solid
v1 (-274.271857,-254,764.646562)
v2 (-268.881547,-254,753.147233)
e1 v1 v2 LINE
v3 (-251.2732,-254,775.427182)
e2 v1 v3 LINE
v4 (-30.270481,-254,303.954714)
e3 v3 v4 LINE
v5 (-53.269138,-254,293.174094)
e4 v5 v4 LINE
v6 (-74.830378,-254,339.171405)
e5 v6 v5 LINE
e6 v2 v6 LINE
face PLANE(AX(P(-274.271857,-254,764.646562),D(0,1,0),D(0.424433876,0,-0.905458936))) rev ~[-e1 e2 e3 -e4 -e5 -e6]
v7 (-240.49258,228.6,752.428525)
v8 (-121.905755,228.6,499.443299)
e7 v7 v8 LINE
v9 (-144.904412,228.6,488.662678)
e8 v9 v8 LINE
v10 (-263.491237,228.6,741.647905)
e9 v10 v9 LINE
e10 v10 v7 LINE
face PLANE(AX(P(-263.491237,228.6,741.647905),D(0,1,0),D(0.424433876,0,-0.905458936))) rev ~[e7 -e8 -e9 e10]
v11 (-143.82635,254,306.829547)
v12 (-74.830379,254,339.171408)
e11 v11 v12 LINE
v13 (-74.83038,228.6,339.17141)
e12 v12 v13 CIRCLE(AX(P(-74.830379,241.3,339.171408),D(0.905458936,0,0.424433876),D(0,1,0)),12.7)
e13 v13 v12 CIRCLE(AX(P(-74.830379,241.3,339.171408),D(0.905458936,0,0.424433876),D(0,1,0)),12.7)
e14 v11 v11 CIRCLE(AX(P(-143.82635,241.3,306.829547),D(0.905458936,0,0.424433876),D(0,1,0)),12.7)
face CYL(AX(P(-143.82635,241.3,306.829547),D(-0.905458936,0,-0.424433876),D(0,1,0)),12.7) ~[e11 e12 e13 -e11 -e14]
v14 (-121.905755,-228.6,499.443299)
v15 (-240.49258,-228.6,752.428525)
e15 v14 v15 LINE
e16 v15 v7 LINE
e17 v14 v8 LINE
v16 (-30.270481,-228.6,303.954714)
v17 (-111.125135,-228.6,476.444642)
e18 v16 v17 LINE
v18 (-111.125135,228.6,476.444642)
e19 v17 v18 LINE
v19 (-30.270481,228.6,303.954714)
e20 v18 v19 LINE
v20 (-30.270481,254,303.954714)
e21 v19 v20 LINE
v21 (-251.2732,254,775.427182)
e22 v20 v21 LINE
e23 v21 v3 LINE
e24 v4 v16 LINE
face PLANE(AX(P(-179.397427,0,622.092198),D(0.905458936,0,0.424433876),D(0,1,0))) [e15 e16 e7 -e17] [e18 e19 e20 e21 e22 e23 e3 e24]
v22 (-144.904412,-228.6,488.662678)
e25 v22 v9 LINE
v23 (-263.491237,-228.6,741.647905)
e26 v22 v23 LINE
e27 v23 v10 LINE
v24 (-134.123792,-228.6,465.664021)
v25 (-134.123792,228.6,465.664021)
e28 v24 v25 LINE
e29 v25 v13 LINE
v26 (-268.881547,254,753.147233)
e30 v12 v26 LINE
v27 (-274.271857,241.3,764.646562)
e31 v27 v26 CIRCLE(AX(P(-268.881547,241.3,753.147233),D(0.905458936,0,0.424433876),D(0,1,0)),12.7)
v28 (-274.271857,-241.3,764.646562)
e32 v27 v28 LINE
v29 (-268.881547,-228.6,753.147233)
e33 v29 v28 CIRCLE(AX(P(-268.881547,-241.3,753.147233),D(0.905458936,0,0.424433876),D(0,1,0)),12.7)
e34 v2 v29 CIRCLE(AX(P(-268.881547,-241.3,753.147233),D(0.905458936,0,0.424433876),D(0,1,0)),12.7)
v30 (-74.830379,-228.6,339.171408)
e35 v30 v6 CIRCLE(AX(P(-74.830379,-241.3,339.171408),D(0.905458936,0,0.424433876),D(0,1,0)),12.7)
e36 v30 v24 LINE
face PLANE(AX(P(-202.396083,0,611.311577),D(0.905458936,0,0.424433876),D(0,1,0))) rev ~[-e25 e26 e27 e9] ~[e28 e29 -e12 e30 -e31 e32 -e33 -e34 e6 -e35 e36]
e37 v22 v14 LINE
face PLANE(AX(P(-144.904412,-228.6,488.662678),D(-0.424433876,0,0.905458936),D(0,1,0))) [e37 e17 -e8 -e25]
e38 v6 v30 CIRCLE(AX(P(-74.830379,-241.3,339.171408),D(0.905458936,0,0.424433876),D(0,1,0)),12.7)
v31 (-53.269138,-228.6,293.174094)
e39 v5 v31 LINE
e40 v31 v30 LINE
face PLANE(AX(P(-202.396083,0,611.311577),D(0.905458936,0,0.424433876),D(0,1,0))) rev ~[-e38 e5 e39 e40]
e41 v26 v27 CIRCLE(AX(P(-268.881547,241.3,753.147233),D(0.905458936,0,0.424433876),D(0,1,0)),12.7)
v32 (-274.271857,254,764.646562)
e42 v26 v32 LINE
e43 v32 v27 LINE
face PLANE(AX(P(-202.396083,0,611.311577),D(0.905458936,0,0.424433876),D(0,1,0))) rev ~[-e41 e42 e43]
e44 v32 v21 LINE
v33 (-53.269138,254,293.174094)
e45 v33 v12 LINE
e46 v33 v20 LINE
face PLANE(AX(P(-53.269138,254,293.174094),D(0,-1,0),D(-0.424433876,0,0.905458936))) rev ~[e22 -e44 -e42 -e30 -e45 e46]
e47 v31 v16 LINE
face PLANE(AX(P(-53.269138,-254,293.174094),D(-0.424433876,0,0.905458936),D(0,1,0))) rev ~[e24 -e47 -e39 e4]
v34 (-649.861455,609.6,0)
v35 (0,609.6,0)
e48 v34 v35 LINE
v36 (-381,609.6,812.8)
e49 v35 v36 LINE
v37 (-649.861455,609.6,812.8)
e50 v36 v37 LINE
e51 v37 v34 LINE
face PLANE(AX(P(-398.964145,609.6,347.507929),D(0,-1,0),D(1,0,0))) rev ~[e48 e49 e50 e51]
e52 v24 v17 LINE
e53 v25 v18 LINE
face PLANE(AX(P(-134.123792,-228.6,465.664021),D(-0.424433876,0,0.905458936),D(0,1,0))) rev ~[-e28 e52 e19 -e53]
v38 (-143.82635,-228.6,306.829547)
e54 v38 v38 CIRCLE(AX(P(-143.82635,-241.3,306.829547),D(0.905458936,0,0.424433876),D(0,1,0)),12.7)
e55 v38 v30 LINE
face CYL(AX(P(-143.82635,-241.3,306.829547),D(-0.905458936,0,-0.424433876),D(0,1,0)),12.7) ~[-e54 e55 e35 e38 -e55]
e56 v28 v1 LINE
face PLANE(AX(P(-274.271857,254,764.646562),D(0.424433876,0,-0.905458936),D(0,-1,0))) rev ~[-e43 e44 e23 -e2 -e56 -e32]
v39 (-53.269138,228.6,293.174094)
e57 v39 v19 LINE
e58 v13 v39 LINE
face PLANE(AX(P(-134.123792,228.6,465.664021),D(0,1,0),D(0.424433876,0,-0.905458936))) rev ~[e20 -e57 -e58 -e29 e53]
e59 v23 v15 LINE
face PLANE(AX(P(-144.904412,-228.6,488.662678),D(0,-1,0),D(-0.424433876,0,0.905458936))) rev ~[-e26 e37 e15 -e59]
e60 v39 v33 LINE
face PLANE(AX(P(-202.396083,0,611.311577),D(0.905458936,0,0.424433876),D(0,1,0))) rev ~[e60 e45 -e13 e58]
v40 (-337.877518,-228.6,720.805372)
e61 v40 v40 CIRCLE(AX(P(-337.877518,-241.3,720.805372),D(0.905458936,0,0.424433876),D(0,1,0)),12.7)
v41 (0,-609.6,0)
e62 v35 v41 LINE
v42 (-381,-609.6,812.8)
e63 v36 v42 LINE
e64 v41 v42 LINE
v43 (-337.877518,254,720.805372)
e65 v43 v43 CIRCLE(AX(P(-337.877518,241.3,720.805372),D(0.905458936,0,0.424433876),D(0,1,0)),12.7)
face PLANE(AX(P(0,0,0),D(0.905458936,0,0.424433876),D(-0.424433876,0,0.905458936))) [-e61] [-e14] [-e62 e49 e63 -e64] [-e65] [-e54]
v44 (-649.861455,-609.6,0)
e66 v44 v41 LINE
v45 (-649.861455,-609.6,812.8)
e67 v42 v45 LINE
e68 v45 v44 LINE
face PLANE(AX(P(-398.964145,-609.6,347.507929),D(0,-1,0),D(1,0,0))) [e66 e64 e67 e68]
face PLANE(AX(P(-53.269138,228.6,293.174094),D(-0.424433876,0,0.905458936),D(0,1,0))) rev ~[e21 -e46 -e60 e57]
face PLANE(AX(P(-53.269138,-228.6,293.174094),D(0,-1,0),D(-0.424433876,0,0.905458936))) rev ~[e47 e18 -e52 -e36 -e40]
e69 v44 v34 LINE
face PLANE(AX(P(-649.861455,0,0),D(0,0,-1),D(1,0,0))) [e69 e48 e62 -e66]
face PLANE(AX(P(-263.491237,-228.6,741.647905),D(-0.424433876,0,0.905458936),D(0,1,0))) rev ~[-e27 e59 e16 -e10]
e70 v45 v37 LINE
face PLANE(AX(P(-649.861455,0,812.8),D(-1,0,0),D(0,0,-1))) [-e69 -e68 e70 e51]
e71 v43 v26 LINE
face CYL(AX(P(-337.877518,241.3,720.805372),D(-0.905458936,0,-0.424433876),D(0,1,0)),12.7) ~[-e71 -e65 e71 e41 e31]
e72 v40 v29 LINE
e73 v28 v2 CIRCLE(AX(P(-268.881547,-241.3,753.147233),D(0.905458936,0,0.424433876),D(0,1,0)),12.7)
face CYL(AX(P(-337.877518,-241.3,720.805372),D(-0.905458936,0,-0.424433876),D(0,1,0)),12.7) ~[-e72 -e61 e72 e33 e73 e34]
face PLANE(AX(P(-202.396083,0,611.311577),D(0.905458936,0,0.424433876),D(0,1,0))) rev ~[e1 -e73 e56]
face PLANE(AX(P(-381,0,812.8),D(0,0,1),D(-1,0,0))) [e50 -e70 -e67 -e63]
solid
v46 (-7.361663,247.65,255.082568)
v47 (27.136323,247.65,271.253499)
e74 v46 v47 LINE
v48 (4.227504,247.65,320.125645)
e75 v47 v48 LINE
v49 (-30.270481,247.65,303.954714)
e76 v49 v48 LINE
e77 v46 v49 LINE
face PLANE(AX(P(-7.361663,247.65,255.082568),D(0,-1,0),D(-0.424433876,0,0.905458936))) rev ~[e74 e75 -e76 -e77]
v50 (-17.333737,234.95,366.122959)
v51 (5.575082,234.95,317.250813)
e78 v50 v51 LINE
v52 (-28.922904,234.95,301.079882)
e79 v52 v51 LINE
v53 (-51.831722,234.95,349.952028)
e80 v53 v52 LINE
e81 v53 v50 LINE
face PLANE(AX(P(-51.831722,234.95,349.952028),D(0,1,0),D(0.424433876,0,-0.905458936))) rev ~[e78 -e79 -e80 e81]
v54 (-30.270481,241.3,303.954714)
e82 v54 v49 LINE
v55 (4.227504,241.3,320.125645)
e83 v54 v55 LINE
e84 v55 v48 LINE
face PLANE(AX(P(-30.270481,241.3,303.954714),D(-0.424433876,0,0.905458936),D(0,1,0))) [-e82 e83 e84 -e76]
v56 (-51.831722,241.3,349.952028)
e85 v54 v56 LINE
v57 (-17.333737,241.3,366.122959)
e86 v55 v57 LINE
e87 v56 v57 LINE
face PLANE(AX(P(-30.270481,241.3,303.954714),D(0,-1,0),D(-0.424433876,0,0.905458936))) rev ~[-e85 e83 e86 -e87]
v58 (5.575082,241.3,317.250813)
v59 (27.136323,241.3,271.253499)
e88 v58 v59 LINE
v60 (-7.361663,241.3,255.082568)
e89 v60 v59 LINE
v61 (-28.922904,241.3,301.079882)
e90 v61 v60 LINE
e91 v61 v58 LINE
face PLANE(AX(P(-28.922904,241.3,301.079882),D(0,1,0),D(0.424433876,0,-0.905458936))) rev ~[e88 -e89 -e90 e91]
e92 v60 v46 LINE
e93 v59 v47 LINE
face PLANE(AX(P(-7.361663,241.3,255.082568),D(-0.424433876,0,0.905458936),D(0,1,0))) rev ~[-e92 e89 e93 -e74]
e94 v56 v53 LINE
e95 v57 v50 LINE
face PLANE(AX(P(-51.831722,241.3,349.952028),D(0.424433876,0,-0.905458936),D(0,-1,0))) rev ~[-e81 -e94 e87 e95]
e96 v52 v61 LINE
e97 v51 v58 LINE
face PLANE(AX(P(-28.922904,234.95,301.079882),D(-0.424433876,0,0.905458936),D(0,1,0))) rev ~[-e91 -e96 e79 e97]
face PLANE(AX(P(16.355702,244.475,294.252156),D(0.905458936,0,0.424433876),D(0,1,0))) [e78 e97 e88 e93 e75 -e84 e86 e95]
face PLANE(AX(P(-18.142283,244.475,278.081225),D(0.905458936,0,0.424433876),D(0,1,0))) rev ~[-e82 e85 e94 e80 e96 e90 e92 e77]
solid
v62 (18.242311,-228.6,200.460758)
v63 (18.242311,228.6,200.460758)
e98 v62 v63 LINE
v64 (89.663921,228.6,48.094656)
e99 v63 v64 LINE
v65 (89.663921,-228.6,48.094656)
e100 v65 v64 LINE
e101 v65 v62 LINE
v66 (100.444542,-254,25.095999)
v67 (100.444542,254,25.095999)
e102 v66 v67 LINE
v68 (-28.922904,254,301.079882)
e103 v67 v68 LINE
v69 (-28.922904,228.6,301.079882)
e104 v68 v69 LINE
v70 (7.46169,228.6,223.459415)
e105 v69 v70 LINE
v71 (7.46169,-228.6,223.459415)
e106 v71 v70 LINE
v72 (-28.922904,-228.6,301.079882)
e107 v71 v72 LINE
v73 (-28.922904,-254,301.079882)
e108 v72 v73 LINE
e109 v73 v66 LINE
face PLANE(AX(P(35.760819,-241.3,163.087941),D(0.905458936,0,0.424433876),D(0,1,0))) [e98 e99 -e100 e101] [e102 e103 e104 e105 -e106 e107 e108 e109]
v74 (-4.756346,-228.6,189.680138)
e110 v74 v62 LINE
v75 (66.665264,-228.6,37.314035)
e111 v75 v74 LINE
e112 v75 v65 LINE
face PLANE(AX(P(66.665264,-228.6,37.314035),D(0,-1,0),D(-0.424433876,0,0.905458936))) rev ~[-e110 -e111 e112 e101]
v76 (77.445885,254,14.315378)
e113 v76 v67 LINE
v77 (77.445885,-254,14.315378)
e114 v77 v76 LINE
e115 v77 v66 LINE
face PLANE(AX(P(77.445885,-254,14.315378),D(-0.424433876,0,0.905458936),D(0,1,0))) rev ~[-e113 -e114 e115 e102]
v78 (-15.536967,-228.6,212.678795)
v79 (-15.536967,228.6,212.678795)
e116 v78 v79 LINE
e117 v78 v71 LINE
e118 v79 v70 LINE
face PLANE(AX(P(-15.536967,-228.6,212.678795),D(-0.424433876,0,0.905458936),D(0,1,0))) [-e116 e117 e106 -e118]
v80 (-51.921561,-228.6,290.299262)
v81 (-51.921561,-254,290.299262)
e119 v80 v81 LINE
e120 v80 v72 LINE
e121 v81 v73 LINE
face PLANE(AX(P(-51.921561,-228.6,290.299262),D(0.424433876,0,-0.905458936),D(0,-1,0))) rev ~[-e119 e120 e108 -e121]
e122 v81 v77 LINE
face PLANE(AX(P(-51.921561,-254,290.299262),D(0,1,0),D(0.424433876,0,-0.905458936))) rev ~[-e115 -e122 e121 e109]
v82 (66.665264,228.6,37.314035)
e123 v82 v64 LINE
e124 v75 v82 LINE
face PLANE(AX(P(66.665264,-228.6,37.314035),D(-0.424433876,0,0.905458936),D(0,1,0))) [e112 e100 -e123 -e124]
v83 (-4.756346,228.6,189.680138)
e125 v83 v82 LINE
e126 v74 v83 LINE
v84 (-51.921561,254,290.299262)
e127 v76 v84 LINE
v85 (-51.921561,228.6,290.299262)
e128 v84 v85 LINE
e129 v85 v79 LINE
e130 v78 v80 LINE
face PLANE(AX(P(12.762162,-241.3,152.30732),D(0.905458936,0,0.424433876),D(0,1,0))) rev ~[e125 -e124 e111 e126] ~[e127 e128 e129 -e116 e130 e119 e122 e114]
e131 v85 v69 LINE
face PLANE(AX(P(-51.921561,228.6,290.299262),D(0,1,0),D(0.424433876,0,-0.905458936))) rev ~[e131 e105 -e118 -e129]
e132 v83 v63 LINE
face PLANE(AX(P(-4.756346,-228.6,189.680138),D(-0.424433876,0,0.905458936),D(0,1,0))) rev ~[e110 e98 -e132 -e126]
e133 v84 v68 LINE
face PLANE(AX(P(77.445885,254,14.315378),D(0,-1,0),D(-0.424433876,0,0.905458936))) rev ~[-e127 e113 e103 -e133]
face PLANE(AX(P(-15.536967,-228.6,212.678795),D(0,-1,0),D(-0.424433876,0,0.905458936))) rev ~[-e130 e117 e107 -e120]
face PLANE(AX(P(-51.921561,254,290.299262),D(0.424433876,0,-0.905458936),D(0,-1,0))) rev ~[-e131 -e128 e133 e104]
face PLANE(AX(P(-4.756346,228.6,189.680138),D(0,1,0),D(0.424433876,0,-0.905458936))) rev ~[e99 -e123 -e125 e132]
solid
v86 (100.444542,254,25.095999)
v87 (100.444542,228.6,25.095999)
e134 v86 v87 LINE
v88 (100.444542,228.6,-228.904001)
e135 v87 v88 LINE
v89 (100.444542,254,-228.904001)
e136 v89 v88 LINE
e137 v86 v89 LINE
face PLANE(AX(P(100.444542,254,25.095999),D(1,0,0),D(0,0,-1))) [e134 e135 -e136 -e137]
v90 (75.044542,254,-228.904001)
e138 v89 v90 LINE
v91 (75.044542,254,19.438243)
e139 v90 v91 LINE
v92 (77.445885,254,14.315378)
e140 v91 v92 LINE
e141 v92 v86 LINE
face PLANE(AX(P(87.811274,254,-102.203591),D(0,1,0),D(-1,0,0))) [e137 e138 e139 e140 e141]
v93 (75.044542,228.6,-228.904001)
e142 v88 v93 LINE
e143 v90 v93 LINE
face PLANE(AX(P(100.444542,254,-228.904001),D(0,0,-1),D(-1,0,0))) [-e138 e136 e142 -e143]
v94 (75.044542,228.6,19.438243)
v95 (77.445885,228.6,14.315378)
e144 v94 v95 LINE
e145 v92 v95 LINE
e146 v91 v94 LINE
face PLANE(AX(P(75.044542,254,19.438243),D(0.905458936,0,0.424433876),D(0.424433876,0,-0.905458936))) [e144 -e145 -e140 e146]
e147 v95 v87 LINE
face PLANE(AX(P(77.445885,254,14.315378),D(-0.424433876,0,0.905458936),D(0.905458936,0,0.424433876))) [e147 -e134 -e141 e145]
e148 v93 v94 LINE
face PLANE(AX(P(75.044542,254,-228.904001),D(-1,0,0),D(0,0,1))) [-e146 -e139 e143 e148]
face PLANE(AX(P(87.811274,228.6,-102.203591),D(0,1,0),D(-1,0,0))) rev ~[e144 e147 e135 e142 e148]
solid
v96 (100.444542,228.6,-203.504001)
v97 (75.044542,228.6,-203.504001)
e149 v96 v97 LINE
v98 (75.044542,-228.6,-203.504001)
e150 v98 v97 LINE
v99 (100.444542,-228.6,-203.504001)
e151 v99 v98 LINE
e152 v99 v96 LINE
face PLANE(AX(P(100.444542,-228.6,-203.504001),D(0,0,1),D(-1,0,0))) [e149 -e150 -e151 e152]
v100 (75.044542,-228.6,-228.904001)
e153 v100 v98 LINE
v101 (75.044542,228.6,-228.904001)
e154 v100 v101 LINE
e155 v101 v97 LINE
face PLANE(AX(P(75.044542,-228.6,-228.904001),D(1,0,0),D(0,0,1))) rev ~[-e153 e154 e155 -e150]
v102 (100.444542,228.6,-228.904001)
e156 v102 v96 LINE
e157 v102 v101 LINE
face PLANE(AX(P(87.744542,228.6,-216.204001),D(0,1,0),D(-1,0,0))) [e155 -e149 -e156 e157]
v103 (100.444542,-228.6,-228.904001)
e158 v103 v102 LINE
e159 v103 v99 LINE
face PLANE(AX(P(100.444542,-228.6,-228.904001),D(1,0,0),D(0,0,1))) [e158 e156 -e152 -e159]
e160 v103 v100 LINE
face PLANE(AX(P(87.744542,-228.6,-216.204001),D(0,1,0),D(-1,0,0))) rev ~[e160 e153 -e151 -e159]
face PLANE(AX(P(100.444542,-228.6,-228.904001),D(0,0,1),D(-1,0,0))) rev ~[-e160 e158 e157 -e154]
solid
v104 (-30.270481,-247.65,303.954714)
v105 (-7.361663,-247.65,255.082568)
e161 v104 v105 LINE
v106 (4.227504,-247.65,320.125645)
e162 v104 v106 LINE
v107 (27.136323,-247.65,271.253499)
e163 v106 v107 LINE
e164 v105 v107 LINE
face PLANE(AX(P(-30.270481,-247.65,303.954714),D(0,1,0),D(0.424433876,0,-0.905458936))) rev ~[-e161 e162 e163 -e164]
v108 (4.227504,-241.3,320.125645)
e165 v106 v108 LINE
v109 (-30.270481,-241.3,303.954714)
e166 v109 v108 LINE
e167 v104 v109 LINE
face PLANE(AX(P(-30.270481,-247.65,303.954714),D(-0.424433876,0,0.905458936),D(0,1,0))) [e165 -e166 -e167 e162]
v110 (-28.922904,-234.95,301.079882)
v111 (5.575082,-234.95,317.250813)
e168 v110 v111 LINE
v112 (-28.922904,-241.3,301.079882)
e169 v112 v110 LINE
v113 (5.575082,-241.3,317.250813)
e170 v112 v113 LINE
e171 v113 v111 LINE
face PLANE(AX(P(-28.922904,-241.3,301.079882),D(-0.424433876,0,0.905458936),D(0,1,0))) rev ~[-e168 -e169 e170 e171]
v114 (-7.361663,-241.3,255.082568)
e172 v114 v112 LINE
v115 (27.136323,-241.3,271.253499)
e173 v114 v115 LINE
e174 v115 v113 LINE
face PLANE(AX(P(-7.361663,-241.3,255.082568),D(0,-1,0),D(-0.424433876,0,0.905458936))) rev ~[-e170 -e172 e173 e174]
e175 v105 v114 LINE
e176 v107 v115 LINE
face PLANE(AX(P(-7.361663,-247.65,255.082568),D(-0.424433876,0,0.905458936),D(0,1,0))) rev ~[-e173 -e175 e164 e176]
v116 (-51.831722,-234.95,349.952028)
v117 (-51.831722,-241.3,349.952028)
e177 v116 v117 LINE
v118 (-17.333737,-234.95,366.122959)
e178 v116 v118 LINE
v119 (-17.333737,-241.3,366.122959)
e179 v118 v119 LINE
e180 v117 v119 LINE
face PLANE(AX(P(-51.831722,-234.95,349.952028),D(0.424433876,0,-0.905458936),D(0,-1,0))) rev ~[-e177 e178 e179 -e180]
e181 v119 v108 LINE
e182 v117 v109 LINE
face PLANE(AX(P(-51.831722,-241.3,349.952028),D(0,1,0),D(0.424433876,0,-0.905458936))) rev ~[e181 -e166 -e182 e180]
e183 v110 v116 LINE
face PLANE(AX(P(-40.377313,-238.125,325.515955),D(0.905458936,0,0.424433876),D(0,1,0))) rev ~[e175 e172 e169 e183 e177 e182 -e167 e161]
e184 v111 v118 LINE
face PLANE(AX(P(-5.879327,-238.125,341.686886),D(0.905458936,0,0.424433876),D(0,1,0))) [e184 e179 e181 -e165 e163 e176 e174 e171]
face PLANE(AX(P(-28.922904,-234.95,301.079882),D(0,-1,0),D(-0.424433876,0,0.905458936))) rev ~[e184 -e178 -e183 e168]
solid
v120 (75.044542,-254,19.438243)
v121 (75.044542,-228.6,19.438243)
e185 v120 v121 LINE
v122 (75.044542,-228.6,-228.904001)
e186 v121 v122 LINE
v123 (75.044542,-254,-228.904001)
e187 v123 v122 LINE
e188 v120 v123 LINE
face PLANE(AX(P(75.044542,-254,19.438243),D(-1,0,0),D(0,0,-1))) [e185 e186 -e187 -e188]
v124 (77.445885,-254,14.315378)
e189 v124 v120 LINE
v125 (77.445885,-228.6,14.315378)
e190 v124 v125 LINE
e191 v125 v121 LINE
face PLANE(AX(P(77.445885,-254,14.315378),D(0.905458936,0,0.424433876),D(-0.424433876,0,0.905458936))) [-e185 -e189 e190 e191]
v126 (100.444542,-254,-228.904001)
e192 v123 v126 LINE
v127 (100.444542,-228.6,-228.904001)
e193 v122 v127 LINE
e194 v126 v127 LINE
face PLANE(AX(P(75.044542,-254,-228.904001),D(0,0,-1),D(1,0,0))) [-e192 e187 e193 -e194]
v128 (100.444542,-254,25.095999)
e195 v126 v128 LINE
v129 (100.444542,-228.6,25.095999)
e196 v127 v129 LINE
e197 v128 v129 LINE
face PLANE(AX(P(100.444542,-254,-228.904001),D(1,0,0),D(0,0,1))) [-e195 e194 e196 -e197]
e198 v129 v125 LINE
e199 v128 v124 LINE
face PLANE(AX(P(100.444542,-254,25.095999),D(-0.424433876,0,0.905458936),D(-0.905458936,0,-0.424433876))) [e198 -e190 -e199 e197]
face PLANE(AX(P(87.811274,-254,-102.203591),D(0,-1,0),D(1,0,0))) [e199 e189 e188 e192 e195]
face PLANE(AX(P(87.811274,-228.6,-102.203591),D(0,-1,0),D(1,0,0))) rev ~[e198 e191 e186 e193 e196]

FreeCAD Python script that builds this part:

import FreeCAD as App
import Part
import Sketcher
Q = App.Units.Quantity

doc = App.newDocument("Part")
body = doc.addObject("PartDesign::Body", "Body")

sketch1 = doc.addObject("Sketcher::SketchObject", "Sketch")
body.addObject(sketch1)
sketch1.AttachmentSupport = (doc.XZ_Plane, [""])
sketch1.MapMode = "FlatFace"
sketch1.addGeometry([
    Part.LineSegment(App.Vector(-649.861455, 0, 0), App.Vector(0, 0, 0)),
    Part.LineSegment(App.Vector(0, 0, 0), App.Vector(-381, 812.8, 0)),
    Part.LineSegment(App.Vector(-381, 812.8, 0), App.Vector(-649.861455, 812.8, 0)),
    Part.LineSegment(App.Vector(-649.861455, 812.8, 0), App.Vector(-649.861455, 0, 0)),
], False)
sketch1.addConstraint([
    Sketcher.Constraint("Coincident", 0, 2, 1, 1),
    Sketcher.Constraint("Coincident", 1, 2, 2, 1),
    Sketcher.Constraint("Coincident", 2, 2, 3, 1),
    Sketcher.Constraint("Coincident", 3, 2, 0, 1),
    Sketcher.Constraint("Horizontal", 0),
    Sketcher.Constraint("Horizontal", 2),
    Sketcher.Constraint("Vertical", 3),
    Sketcher.Constraint("Coincident", 0, 2, -1, 1),
    Sketcher.Constraint("DistanceY", 3, 2, 3, 1, Q("32 in")),
    Sketcher.Constraint("DistanceX", 1, 2, -1, 1, Q("15 in")),
    Sketcher.Constraint("DistanceX", 0, 1, 0, 2, 649.861455),
])
pad1 = doc.addObject("PartDesign::Pad", "Pad")
body.addObject(pad1)
pad1.Profile = sketch1
pad1.Length = Q("48 in")
pad1.Midplane = True

sketch2 = doc.addObject("Sketcher::SketchObject", "Sketch001")
body.addObject(sketch2)
sketch2.Placement = App.Placement(App.Vector(0, 0, 0), App.Rotation(App.Vector(0, 1, 0), App.Vector(-0.424433876, 0, 0.905458936), App.Vector(0.905458936, 0, 0.424433876), "ZXY"))
sketch2.addGeometry([
    Part.Circle(App.Vector(-241.3, 796.06633, 0), App.Vector(0, 0, 1), 12.7),
    Part.Circle(App.Vector(241.3, 796.06633, 0), App.Vector(0, 0, 1), 12.7),
    Part.Circle(App.Vector(241.3, 338.86633, 0), App.Vector(0, 0, 1), 12.7),
    Part.Circle(App.Vector(-241.3, 338.86633, 0), App.Vector(0, 0, 1), 12.7),
], False)
sketch2.addConstraint([
    Sketcher.Constraint("Equal", 0, 1),
    Sketcher.Constraint("Equal", 1, 2),
    Sketcher.Constraint("Equal", 2, 3),
    Sketcher.Constraint("Symmetric", 0, 3, 1, 3, -2),
    Sketcher.Constraint("Symmetric", 2, 3, 3, 3, -2),
    Sketcher.Constraint("Vertical", 1, 3, 2, 3),
    Sketcher.Constraint("Diameter", 0, Q("1 in")),
    Sketcher.Constraint("DistanceX", 0, 3, 1, 3, Q("19 in")),
    Sketcher.Constraint("DistanceY", 2, 3, 1, 3, Q("18 in")),
    Sketcher.Constraint("DistanceY", -1, 1, 0, 3, 796.06633),
])
pad2 = doc.addObject("PartDesign::Pad", "Pad001")
body.addObject(pad2)
pad2.Profile = sketch2
pad2.Length = Q("3 in")

sketch3 = doc.addObject("Sketcher::SketchObject", "Sketch002")
body.addObject(sketch3)
sketch3.Placement = App.Placement(App.Vector(68.995971, 0, 32.341861), App.Rotation(App.Vector(0, 1, 0), App.Vector(-0.424433876, 0, 0.905458936), App.Vector(0.905458936, 0, 0.424433876), "ZXY"))
sketch3.addGeometry([
    Part.LineSegment(App.Vector(-228.6, 478.56633, 0), App.Vector(228.6, 478.56633, 0)),
    Part.LineSegment(App.Vector(228.6, 478.56633, 0), App.Vector(228.6, 288.06633, 0)),
    Part.LineSegment(App.Vector(228.6, 288.06633, 0), App.Vector(254, 288.06633, 0)),
    Part.LineSegment(App.Vector(254, 288.06633, 0), App.Vector(254, 808.76633, 0)),
    Part.LineSegment(App.Vector(254, 808.76633, 0), App.Vector(-254, 808.76633, 0)),
    Part.LineSegment(App.Vector(-254, 808.76633, 0), App.Vector(-254, 288.06633, 0)),
    Part.LineSegment(App.Vector(-254, 288.06633, 0), App.Vector(-228.6, 288.06633, 0)),
    Part.LineSegment(App.Vector(-228.6, 288.06633, 0), App.Vector(-228.6, 478.56633, 0)),
    Part.LineSegment(App.Vector(-228.6, 503.96633, 0), App.Vector(-228.6, 783.36633, 0)),
    Part.LineSegment(App.Vector(-228.6, 783.36633, 0), App.Vector(228.6, 783.36633, 0)),
    Part.LineSegment(App.Vector(228.6, 783.36633, 0), App.Vector(228.6, 503.96633, 0)),
    Part.LineSegment(App.Vector(228.6, 503.96633, 0), App.Vector(-228.6, 503.96633, 0)),
], False)
sketch3.addConstraint([
    Sketcher.Constraint("Coincident", 0, 2, 1, 1),
    Sketcher.Constraint("Coincident", 1, 2, 2, 1),
    Sketcher.Constraint("Coincident", 2, 2, 3, 1),
    Sketcher.Constraint("Coincident", 3, 2, 4, 1),
    Sketcher.Constraint("Coincident", 4, 2, 5, 1),
    Sketcher.Constraint("Coincident", 5, 2, 6, 1),
    Sketcher.Constraint("Coincident", 6, 2, 7, 1),
    Sketcher.Constraint("Coincident", 7, 2, 0, 1),
    Sketcher.Constraint("Coincident", 8, 2, 9, 1),
    Sketcher.Constraint("Coincident", 9, 2, 10, 1),
    Sketcher.Constraint("Coincident", 10, 2, 11, 1),
    Sketcher.Constraint("Coincident", 11, 2, 8, 1),
    Sketcher.Constraint("Horizontal", 0),
    Sketcher.Constraint("Vertical", 1),
    Sketcher.Constraint("Horizontal", 2),
    Sketcher.Constraint("Vertical", 3),
    Sketcher.Constraint("Horizontal", 4),
    Sketcher.Constraint("Vertical", 5),
    Sketcher.Constraint("Horizontal", 6),
    Sketcher.Constraint("Vertical", 7),
    Sketcher.Constraint("Vertical", 8),
    Sketcher.Constraint("Horizontal", 9),
    Sketcher.Constraint("Vertical", 10),
    Sketcher.Constraint("Horizontal", 11),
    Sketcher.Constraint("Symmetric", 2, 2, 5, 2, -2),
    Sketcher.Constraint("Vertical", 7, 2, 8, 2),
    Sketcher.Constraint("Vertical", 1, 2, 9, 2),
    Sketcher.Constraint("Equal", 2, 6),
    Sketcher.Constraint("DistanceX", 0, 1, 0, 2, Q("18 in")),
    Sketcher.Constraint("DistanceX", 2, 1, 2, 2, Q("1 in")),
    Sketcher.Constraint("DistanceY", 8, 1, 8, 2, Q("11 in")),
    Sketcher.Constraint("DistanceY", 1, 2, 1, 1, Q("7.5 in")),
    Sketcher.Constraint("DistanceY", 3, 1, 3, 2, Q("20.5 in")),
    Sketcher.Constraint("DistanceY", 8, 2, 4, 2, Q("1 in")),
    Sketcher.Constraint("DistanceY", -1, 1, 0, 2, 478.56633),
])
pad3 = doc.addObject("PartDesign::Pad", "Pad002")
body.addObject(pad3)
pad3.Profile = sketch3
pad3.Length = Q("1 in")
body2 = doc.addObject("PartDesign::Body", "Body001")

sketch4 = doc.addObject("Sketcher::SketchObject", "Sketch003")
body2.addObject(sketch4)
sketch4.Placement = App.Placement(App.Vector(68.995971, 0, 32.341861), App.Rotation(App.Vector(0, 1, 0), App.Vector(-0.424433876, 0, 0.905458936), App.Vector(0.905458936, 0, 0.424433876), "ZXY"))
sketch4.addGeometry([
    Part.LineSegment(App.Vector(-228.6, 284.89133, 0), App.Vector(-254, 284.89133, 0)),
    Part.LineSegment(App.Vector(-254, 284.89133, 0), App.Vector(-254, -19.90867, 0)),
    Part.LineSegment(App.Vector(-254, -19.90867, 0), App.Vector(254, -19.90867, 0)),
    Part.LineSegment(App.Vector(254, -19.90867, 0), App.Vector(254, 284.89133, 0)),
    Part.LineSegment(App.Vector(254, 284.89133, 0), App.Vector(228.6, 284.89133, 0)),
    Part.LineSegment(App.Vector(228.6, 284.89133, 0), App.Vector(228.6, 199.16633, 0)),
    Part.LineSegment(App.Vector(228.6, 199.16633, 0), App.Vector(-228.6, 199.16633, 0)),
    Part.LineSegment(App.Vector(-228.6, 199.16633, 0), App.Vector(-228.6, 284.89133, 0)),
    Part.LineSegment(App.Vector(-228.6, 5.49133, 0), App.Vector(-228.6, 173.76633, 0)),
    Part.LineSegment(App.Vector(-228.6, 173.76633, 0), App.Vector(228.6, 173.76633, 0)),
    Part.LineSegment(App.Vector(228.6, 173.76633, 0), App.Vector(228.6, 5.49133, 0)),
    Part.LineSegment(App.Vector(228.6, 5.49133, 0), App.Vector(-228.6, 5.49133, 0)),
], False)
sketch4.addConstraint([
    Sketcher.Constraint("Coincident", 0, 2, 1, 1),
    Sketcher.Constraint("Coincident", 1, 2, 2, 1),
    Sketcher.Constraint("Coincident", 2, 2, 3, 1),
    Sketcher.Constraint("Coincident", 3, 2, 4, 1),
    Sketcher.Constraint("Coincident", 4, 2, 5, 1),
    Sketcher.Constraint("Coincident", 5, 2, 6, 1),
    Sketcher.Constraint("Coincident", 6, 2, 7, 1),
    Sketcher.Constraint("Coincident", 7, 2, 0, 1),
    Sketcher.Constraint("Coincident", 8, 2, 9, 1),
    Sketcher.Constraint("Coincident", 9, 2, 10, 1),
    Sketcher.Constraint("Coincident", 10, 2, 11, 1),
    Sketcher.Constraint("Coincident", 11, 2, 8, 1),
    Sketcher.Constraint("Horizontal", 0),
    Sketcher.Constraint("Vertical", 1),
    Sketcher.Constraint("Horizontal", 2),
    Sketcher.Constraint("Vertical", 3),
    Sketcher.Constraint("Horizontal", 4),
    Sketcher.Constraint("Vertical", 5),
    Sketcher.Constraint("Horizontal", 6),
    Sketcher.Constraint("Vertical", 7),
    Sketcher.Constraint("Vertical", 8),
    Sketcher.Constraint("Horizontal", 9),
    Sketcher.Constraint("Vertical", 10),
    Sketcher.Constraint("Horizontal", 11),
    Sketcher.Constraint("Symmetric", 0, 2, 3, 2, -2),
    Sketcher.Constraint("Vertical", 7, 2, 8, 2),
    Sketcher.Constraint("Vertical", 5, 2, 9, 2),
    Sketcher.Constraint("Equal", 0, 4),
    Sketcher.Constraint("DistanceX", 0, 2, 0, 1, Q("1 in")),
    Sketcher.Constraint("DistanceX", 2, 1, 2, 2, Q("20 in")),
    Sketcher.Constraint("DistanceY", 1, 2, 1, 1, Q("12 in")),
    Sketcher.Constraint("DistanceY", 8, 2, 6, 2, Q("1 in")),
    Sketcher.Constraint("DistanceY", 2, 2, 10, 2, Q("1 in")),
    Sketcher.Constraint("DistanceY", 5, 2, 5, 1, Q("3.375 in")),
    Sketcher.Constraint("DistanceY", -1, 1, 0, 2, 284.89133),
])
pad4 = doc.addObject("PartDesign::Pad", "Pad003")
body2.addObject(pad4)
pad4.Profile = sketch4
pad4.Length = Q("1 in")
body3 = doc.addObject("PartDesign::Body", "Body002")

sketch5 = doc.addObject("Sketcher::SketchObject", "Sketch004")
body3.addObject(sketch5)
sketch5.AttachmentSupport = (doc.getObject("XZ_Plane002"), [""])
sketch5.MapMode = "FlatFace"
sketch5.AttachmentOffset = App.Placement(App.Vector(0, 0, 10 * 25.4), App.Rotation())
sketch5.addGeometry([
    Part.LineSegment(App.Vector(100.444542, -228.904001, 0), App.Vector(100.444542, 25.095999, 0)),
    Part.LineSegment(App.Vector(100.444542, 25.095999, 0), App.Vector(77.445885, 14.315378, 0)),
    Part.LineSegment(App.Vector(77.445885, 14.315378, 0), App.Vector(75.044542, 19.438243, 0)),
    Part.LineSegment(App.Vector(75.044542, 19.438243, 0), App.Vector(75.044542, -228.904001, 0)),
    Part.LineSegment(App.Vector(75.044542, -228.904001, 0), App.Vector(100.444542, -228.904001, 0)),
], False)
sketch5.addConstraint([
    Sketcher.Constraint("Coincident", 0, 2, 1, 1),
    Sketcher.Constraint("Coincident", 1, 2, 2, 1),
    Sketcher.Constraint("Coincident", 2, 2, 3, 1),
    Sketcher.Constraint("Coincident", 3, 2, 4, 1),
    Sketcher.Constraint("Coincident", 4, 2, 0, 1),
    Sketcher.Constraint("Vertical", 0),
    Sketcher.Constraint("Vertical", 3),
    Sketcher.Constraint("Horizontal", 4),
    Sketcher.Constraint("Perpendicular", 1, 2),
    Sketcher.Constraint("DistanceX", 4, 1, 4, 2, Q("1 in")),
    Sketcher.Constraint("DistanceY", 0, 1, 0, 2, Q("10 in")),
    Sketcher.Constraint("Distance", 1, Q("1 in")),
    Sketcher.Constraint("DistanceY", -1, 1, 0, 2, 25.095999),
    Sketcher.Constraint("DistanceY", 3, 2, 3, 1, 248.342245),
    Sketcher.Constraint("DistanceX", -1, 1, 0, 2, 100.444542),
])
pad5 = doc.addObject("PartDesign::Pad", "Pad004")
body3.addObject(pad5)
pad5.Profile = sketch5
pad5.Length = Q("1 in")
pad5.Reversed = True
body4 = doc.addObject("PartDesign::Body", "Body003")

sketch6 = doc.addObject("Sketcher::SketchObject", "Sketch005")
body4.addObject(sketch6)
sketch6.AttachmentSupport = (doc.getObject("XZ_Plane003"), [""])
sketch6.MapMode = "FlatFace"
sketch6.AttachmentOffset = App.Placement(App.Vector(0, 0, -10 * 25.4), App.Rotation())
sketch6.addGeometry([
    Part.LineSegment(App.Vector(77.445885, 14.315378, 0), App.Vector(100.444542, 25.095999, 0)),
    Part.LineSegment(App.Vector(100.444542, 25.095999, 0), App.Vector(100.444542, -228.904001, 0)),
    Part.LineSegment(App.Vector(100.444542, -228.904001, 0), App.Vector(75.044542, -228.904001, 0)),
    Part.LineSegment(App.Vector(75.044542, -228.904001, 0), App.Vector(75.044542, 19.438243, 0)),
    Part.LineSegment(App.Vector(75.044542, 19.438243, 0), App.Vector(77.445885, 14.315378, 0)),
], False)
sketch6.addConstraint([
    Sketcher.Constraint("Coincident", 0, 2, 1, 1),
    Sketcher.Constraint("Coincident", 1, 2, 2, 1),
    Sketcher.Constraint("Coincident", 2, 2, 3, 1),
    Sketcher.Constraint("Coincident", 3, 2, 4, 1),
    Sketcher.Constraint("Coincident", 4, 2, 0, 1),
    Sketcher.Constraint("Vertical", 1),
    Sketcher.Constraint("Horizontal", 2),
    Sketcher.Constraint("Vertical", 3),
    Sketcher.Constraint("Perpendicular", 0, 4),
    Sketcher.Constraint("DistanceX", 2, 2, 2, 1, Q("1 in")),
    Sketcher.Constraint("DistanceY", 1, 2, 1, 1, Q("10 in")),
    Sketcher.Constraint("Distance", 0, Q("1 in")),
    Sketcher.Constraint("DistanceY", -1, 1, 0, 2, 25.095999),
    Sketcher.Constraint("DistanceY", 3, 1, 3, 2, 248.342245),
    Sketcher.Constraint("DistanceX", -1, 1, 0, 2, 100.444542),
])
pad6 = doc.addObject("PartDesign::Pad", "Pad005")
body4.addObject(pad6)
pad6.Profile = sketch6
pad6.Length = Q("1 in")
body5 = doc.addObject("PartDesign::Body", "Body004")

sketch7 = doc.addObject("Sketcher::SketchObject", "Sketch006")
body5.addObject(sketch7)
sketch7.AttachmentSupport = (doc.getObject("XZ_Plane004"), [""])
sketch7.MapMode = "FlatFace"
sketch7.AttachmentOffset = App.Placement(App.Vector(0, 0, 9 * 25.4), App.Rotation())
sketch7.addGeometry([
    Part.LineSegment(App.Vector(100.444542, -203.504001, 0), App.Vector(100.444542, -228.904001, 0)),
    Part.LineSegment(App.Vector(100.444542, -228.904001, 0), App.Vector(75.044542, -228.904001, 0)),
    Part.LineSegment(App.Vector(75.044542, -228.904001, 0), App.Vector(75.044542, -203.504001, 0)),
    Part.LineSegment(App.Vector(75.044542, -203.504001, 0), App.Vector(100.444542, -203.504001, 0)),
], False)
sketch7.addConstraint([
    Sketcher.Constraint("Coincident", 0, 2, 1, 1),
    Sketcher.Constraint("Coincident", 1, 2, 2, 1),
    Sketcher.Constraint("Coincident", 2, 2, 3, 1),
    Sketcher.Constraint("Coincident", 3, 2, 0, 1),
    Sketcher.Constraint("Vertical", 0),
    Sketcher.Constraint("Horizontal", 1),
    Sketcher.Constraint("Vertical", 2),
    Sketcher.Constraint("Horizontal", 3),
    Sketcher.Constraint("Equal", 3, 0),
    Sketcher.Constraint("DistanceX", 1, 2, 1, 1, Q("1 in")),
    Sketcher.Constraint("DistanceY", 0, 2, -1, 1, 228.904001),
    Sketcher.Constraint("DistanceX", -1, 1, 0, 2, 100.444542),
])
pad7 = doc.addObject("PartDesign::Pad", "Pad006")
body5.addObject(pad7)
pad7.Profile = sketch7
pad7.Length = Q("18 in")
pad7.Reversed = True
body6 = doc.addObject("PartDesign::Body", "Body005")

sketch8 = doc.addObject("Sketcher::SketchObject", "Sketch007")
body6.addObject(sketch8)
sketch8.Placement = App.Placement(App.Vector(91.994628, 0, 43.122482), App.Rotation(App.Vector(0, 1, 0), App.Vector(-0.424433876, 0, 0.905458936), App.Vector(0.905458936, 0, 0.424433876), "ZXY"))
sketch8.addGeometry([
    Part.LineSegment(App.Vector(-241.3, 284.89133, 0), App.Vector(-234.95, 284.89133, 0)),
    Part.LineSegment(App.Vector(-234.95, 284.89133, 0), App.Vector(-234.95, 338.86633, 0)),
    Part.LineSegment(App.Vector(-234.95, 338.86633, 0), App.Vector(-241.3, 338.86633, 0)),
    Part.LineSegment(App.Vector(-241.3, 338.86633, 0), App.Vector(-241.3, 288.06633, 0)),
    Part.LineSegment(App.Vector(-241.3, 288.06633, 0), App.Vector(-247.65, 288.06633, 0)),
    Part.LineSegment(App.Vector(-247.65, 288.06633, 0), App.Vector(-247.65, 234.09133, 0)),
    Part.LineSegment(App.Vector(-247.65, 234.09133, 0), App.Vector(-241.3, 234.09133, 0)),
    Part.LineSegment(App.Vector(-241.3, 234.09133, 0), App.Vector(-241.3, 284.89133, 0)),
], False)
sketch8.addConstraint([
    Sketcher.Constraint("Coincident", 0, 2, 1, 1),
    Sketcher.Constraint("Coincident", 1, 2, 2, 1),
    Sketcher.Constraint("Coincident", 2, 2, 3, 1),
    Sketcher.Constraint("Coincident", 3, 2, 4, 1),
    Sketcher.Constraint("Coincident", 4, 2, 5, 1),
    Sketcher.Constraint("Coincident", 5, 2, 6, 1),
    Sketcher.Constraint("Coincident", 6, 2, 7, 1),
    Sketcher.Constraint("Coincident", 7, 2, 0, 1),
    Sketcher.Constraint("Horizontal", 0),
    Sketcher.Constraint("Vertical", 1),
    Sketcher.Constraint("Horizontal", 2),
    Sketcher.Constraint("Vertical", 3),
    Sketcher.Constraint("Horizontal", 4),
    Sketcher.Constraint("Vertical", 5),
    Sketcher.Constraint("Horizontal", 6),
    Sketcher.Constraint("Vertical", 7),
    Sketcher.Constraint("Vertical", 3, 2, 6, 2),
    Sketcher.Constraint("Equal", 2, 4),
    Sketcher.Constraint("Equal", 1, 5),
    Sketcher.Constraint("DistanceY", 3, 2, 3, 1, Q("2 in")),
    Sketcher.Constraint("DistanceX", 0, 1, 0, 2, Q("0.25 in")),
    Sketcher.Constraint("DistanceX", 2, 2, -1, 1, Q("9.5 in")),
    Sketcher.Constraint("DistanceY", 1, 1, 1, 2, Q("2.125 in")),
    Sketcher.Constraint("DistanceY", -1, 1, 0, 2, 284.89133),
])
pad8 = doc.addObject("PartDesign::Pad", "Pad007")
body6.addObject(pad8)
pad8.Profile = sketch8
pad8.Length = Q("1.5 in")
body7 = doc.addObject("PartDesign::Body", "Body006")

sketch9 = doc.addObject("Sketcher::SketchObject", "Sketch008")
body7.addObject(sketch9)
sketch9.Placement = App.Placement(App.Vector(91.994628, 0, 43.122482), App.Rotation(App.Vector(0, 1, 0), App.Vector(-0.424433876, 0, 0.905458936), App.Vector(0.905458936, 0, 0.424433876), "ZXY"))
sketch9.addGeometry([
    Part.LineSegment(App.Vector(241.3, 234.09133, 0), App.Vector(247.65, 234.09133, 0)),
    Part.LineSegment(App.Vector(247.65, 234.09133, 0), App.Vector(247.65, 288.06633, 0)),
    Part.LineSegment(App.Vector(247.65, 288.06633, 0), App.Vector(241.3, 288.06633, 0)),
    Part.LineSegment(App.Vector(241.3, 288.06633, 0), App.Vector(241.3, 338.86633, 0)),
    Part.LineSegment(App.Vector(241.3, 338.86633, 0), App.Vector(234.95, 338.86633, 0)),
    Part.LineSegment(App.Vector(234.95, 338.86633, 0), App.Vector(234.95, 284.89133, 0)),
    Part.LineSegment(App.Vector(234.95, 284.89133, 0), App.Vector(241.3, 284.89133, 0)),
    Part.LineSegment(App.Vector(241.3, 284.89133, 0), App.Vector(241.3, 234.09133, 0)),
], False)
sketch9.addConstraint([
    Sketcher.Constraint("Coincident", 0, 2, 1, 1),
    Sketcher.Constraint("Coincident", 1, 2, 2, 1),
    Sketcher.Constraint("Coincident", 2, 2, 3, 1),
    Sketcher.Constraint("Coincident", 3, 2, 4, 1),
    Sketcher.Constraint("Coincident", 4, 2, 5, 1),
    Sketcher.Constraint("Coincident", 5, 2, 6, 1),
    Sketcher.Constraint("Coincident", 6, 2, 7, 1),
    Sketcher.Constraint("Coincident", 7, 2, 0, 1),
    Sketcher.Constraint("Horizontal", 0),
    Sketcher.Constraint("Vertical", 1),
    Sketcher.Constraint("Horizontal", 2),
    Sketcher.Constraint("Vertical", 3),
    Sketcher.Constraint("Horizontal", 4),
    Sketcher.Constraint("Vertical", 5),
    Sketcher.Constraint("Horizontal", 6),
    Sketcher.Constraint("Vertical", 7),
    Sketcher.Constraint("Vertical", 3, 2, 6, 2),
    Sketcher.Constraint("Equal", 2, 4),
    Sketcher.Constraint("Equal", 1, 5),
    Sketcher.Constraint("DistanceY", 3, 1, 3, 2, Q("2 in")),
    Sketcher.Constraint("DistanceX", 0, 1, 0, 2, Q("0.25 in")),
    Sketcher.Constraint("DistanceX", -1, 1, 2, 2, Q("9.5 in")),
    Sketcher.Constraint("DistanceY", 1, 1, 1, 2, Q("2.125 in")),
    Sketcher.Constraint("DistanceY", -1, 1, 0, 2, 234.09133),
])
pad9 = doc.addObject("PartDesign::Pad", "Pad008")
body7.addObject(pad9)
pad9.Profile = sketch9
pad9.Length = Q("1.5 in")

doc.recompute()
